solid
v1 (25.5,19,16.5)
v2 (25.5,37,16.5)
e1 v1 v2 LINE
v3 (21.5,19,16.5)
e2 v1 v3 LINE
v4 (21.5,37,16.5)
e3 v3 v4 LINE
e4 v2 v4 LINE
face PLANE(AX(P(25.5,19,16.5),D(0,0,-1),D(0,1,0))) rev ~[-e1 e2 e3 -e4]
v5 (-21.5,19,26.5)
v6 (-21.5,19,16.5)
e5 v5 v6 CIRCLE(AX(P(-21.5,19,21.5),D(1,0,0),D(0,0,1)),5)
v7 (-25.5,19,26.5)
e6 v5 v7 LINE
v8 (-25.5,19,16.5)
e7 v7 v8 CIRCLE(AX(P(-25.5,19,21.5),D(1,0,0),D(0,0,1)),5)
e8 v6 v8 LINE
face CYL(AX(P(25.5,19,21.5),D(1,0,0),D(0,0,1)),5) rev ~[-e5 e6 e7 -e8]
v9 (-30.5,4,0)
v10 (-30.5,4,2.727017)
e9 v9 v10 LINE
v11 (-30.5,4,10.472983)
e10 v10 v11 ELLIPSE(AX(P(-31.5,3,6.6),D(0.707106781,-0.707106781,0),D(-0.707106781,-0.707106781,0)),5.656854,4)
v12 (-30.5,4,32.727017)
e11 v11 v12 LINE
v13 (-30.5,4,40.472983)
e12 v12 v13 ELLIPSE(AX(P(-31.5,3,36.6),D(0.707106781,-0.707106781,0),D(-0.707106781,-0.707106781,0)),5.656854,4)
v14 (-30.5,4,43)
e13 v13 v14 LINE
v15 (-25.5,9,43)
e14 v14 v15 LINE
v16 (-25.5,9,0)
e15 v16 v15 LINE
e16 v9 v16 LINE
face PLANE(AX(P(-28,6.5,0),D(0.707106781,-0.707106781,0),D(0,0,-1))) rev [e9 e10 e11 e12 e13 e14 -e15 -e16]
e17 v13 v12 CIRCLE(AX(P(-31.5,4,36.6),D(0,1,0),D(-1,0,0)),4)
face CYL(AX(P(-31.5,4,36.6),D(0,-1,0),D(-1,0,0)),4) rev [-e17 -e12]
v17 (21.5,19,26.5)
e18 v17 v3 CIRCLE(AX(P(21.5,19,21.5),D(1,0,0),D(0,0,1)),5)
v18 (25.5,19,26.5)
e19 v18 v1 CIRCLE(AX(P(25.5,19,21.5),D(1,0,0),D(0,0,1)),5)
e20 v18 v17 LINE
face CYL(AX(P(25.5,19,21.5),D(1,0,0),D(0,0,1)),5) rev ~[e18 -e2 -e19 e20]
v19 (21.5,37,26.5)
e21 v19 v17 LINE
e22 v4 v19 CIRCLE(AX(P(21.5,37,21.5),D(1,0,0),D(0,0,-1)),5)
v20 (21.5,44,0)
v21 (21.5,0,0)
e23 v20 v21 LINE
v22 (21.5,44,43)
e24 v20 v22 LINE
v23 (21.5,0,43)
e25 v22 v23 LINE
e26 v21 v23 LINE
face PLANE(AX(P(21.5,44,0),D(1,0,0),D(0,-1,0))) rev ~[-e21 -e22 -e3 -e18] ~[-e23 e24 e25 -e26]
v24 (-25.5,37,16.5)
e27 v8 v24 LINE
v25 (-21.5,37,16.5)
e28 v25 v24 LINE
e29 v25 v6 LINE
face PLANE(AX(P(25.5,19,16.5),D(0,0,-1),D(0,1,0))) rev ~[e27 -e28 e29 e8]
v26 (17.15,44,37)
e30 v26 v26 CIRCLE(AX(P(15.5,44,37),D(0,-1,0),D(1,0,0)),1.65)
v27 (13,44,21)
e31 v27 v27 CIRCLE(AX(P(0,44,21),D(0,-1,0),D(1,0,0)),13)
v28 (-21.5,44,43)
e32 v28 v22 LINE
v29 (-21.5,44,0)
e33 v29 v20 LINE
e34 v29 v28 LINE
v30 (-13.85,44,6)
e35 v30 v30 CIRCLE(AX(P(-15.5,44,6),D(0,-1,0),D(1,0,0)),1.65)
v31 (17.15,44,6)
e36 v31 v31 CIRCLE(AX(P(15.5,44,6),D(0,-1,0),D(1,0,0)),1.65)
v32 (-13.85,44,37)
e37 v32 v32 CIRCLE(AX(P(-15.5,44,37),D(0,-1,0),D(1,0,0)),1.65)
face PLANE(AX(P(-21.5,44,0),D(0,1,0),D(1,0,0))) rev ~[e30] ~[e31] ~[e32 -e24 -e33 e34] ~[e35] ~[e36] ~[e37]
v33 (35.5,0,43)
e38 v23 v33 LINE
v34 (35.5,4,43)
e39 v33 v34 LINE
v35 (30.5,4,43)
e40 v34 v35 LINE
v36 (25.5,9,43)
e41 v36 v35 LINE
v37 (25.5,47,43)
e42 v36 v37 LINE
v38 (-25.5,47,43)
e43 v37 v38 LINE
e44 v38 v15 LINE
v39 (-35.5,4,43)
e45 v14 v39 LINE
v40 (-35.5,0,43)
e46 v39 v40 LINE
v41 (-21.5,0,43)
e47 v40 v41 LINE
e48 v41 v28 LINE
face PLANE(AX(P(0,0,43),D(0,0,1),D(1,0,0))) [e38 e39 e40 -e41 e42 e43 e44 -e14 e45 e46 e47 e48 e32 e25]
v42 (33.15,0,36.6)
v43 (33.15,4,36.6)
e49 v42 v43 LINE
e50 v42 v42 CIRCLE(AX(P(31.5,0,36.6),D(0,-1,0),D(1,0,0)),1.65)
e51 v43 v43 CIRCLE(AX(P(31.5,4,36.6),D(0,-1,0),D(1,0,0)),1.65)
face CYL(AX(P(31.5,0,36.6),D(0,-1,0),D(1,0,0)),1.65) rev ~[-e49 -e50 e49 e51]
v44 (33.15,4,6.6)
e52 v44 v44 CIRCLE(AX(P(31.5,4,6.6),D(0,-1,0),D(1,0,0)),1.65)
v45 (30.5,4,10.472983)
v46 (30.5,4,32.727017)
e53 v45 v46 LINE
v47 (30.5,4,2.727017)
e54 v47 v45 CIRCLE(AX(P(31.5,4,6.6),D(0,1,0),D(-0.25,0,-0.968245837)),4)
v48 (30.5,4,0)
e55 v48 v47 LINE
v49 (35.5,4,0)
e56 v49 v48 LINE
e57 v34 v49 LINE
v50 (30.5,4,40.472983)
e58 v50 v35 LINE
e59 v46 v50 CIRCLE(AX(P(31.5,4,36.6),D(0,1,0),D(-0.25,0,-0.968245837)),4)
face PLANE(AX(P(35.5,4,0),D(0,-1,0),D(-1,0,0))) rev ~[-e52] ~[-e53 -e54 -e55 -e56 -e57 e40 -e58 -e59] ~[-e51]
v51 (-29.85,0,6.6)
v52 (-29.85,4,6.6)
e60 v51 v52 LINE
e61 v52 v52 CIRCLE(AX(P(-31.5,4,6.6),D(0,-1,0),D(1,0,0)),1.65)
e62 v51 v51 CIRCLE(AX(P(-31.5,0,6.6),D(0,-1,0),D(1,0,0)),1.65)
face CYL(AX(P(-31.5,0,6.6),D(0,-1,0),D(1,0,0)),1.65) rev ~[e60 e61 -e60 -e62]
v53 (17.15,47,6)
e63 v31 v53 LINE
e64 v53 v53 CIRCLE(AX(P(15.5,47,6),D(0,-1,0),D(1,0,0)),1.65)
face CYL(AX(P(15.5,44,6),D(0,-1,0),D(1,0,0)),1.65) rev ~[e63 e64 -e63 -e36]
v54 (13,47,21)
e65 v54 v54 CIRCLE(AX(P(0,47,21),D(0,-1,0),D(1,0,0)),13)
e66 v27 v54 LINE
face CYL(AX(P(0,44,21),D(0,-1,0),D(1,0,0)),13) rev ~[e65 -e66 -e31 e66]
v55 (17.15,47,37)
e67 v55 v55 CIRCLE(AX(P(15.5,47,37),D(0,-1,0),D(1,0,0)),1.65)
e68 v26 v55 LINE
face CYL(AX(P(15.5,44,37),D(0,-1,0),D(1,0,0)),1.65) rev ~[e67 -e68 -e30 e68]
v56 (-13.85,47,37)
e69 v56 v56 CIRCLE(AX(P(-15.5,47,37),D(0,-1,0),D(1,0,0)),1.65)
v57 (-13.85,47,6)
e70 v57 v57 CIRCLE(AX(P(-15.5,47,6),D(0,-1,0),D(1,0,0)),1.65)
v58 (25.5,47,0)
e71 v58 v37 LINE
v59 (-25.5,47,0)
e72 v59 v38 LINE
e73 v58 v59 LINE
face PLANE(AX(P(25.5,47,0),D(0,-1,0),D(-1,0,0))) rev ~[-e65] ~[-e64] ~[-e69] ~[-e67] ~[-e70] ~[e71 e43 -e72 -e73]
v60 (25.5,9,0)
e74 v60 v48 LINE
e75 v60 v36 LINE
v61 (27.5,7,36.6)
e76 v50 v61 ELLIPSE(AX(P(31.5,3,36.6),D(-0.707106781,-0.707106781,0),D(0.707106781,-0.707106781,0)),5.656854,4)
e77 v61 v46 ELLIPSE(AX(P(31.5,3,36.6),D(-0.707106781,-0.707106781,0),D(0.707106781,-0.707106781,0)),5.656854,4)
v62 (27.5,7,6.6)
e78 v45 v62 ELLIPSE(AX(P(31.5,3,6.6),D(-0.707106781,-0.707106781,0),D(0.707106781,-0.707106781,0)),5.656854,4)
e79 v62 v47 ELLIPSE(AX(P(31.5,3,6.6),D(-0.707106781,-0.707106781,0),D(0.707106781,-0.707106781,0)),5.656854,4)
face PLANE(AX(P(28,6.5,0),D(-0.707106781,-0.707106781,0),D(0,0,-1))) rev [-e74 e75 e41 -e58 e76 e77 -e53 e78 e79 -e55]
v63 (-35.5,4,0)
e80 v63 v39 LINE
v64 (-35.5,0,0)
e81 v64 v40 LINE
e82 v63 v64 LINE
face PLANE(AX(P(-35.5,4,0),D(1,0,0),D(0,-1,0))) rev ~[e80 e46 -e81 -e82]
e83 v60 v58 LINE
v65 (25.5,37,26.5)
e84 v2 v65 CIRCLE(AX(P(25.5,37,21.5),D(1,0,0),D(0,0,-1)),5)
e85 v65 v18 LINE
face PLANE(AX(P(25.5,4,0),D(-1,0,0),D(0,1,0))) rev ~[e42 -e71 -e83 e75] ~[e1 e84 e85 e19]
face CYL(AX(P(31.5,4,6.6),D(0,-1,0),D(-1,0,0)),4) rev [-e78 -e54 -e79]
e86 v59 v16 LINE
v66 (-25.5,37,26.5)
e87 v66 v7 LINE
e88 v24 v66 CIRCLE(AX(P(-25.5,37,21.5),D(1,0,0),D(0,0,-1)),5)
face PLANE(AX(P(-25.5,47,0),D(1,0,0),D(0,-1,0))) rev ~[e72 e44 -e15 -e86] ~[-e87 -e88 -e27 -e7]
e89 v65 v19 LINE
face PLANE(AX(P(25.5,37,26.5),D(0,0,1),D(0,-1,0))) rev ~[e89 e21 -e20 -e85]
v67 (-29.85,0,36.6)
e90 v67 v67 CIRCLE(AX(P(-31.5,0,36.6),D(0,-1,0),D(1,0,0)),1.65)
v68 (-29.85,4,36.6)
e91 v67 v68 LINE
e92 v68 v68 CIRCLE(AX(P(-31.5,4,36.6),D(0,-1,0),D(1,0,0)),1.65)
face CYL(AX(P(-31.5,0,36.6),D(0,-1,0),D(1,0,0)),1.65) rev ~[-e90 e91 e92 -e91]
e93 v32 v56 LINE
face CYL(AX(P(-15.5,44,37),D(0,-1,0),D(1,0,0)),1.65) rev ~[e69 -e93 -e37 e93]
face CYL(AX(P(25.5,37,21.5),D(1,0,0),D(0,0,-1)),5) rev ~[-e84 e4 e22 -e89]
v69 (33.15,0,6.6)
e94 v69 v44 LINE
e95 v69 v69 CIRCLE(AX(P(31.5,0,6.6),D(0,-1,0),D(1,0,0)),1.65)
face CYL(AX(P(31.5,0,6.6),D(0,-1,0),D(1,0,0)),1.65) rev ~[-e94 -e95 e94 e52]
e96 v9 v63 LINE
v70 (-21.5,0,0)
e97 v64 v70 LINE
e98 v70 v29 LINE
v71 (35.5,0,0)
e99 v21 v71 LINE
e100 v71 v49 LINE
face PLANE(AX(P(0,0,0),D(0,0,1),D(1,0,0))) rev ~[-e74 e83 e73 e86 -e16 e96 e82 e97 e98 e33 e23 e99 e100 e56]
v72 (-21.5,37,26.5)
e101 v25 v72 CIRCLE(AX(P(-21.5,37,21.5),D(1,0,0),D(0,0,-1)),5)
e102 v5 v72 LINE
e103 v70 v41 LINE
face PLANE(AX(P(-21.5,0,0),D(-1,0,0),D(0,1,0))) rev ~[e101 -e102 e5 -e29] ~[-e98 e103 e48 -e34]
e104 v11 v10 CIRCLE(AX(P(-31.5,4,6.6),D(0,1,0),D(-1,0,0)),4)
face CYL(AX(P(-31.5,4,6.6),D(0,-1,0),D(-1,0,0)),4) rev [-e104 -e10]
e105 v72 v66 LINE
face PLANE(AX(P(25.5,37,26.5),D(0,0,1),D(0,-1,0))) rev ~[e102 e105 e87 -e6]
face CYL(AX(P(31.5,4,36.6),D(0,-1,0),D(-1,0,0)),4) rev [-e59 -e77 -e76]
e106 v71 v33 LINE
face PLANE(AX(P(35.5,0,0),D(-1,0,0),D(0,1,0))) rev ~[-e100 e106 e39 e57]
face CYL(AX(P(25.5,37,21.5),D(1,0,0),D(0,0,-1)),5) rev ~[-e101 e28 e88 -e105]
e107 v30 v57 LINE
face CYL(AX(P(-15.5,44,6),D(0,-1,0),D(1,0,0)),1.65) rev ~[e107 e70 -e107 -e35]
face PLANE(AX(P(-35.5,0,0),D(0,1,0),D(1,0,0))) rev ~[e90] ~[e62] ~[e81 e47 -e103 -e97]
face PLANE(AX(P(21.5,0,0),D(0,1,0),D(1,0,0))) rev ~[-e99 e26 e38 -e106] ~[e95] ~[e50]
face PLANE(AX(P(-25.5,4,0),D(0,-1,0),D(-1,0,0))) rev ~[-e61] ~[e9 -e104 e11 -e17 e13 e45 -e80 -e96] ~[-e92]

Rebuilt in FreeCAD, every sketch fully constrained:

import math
import FreeCAD as App
import Part
import Sketcher
from FreeCAD import Vector


def edges_at(feature, points):
    """Names of the edges that pass closest to the given points."""
    edges = feature.Shape.Edges
    near = lambda p: min(range(len(edges)), key=lambda i: edges[i].distToShape(Part.Vertex(*p))[0])
    return sorted({f"Edge{near(p) + 1}" for p in points})

doc = App.newDocument("Part")
body = doc.addObject("PartDesign::Body", "Body")

# Sketch on XY plane
sketch1 = body.newObject("Sketcher::SketchObject", "Sketch")
sketch1.AttachmentSupport = (doc.getObject("XY_Plane"), [""])
sketch1.MapMode = "FlatFace"
sketch1.addGeometry(Part.LineSegment(Vector(-35.5, 4, 0), Vector(-35.5, 0, 0)), False)
sketch1.addGeometry(Part.LineSegment(Vector(-35.5, 0, 0), Vector(-21.5, 0, 0)), False)
sketch1.addGeometry(Part.LineSegment(Vector(-21.5, 0, 0), Vector(-21.5, 44, 0)), False)
sketch1.addGeometry(Part.LineSegment(Vector(-21.5, 44, 0), Vector(21.5, 44, 0)), False)
sketch1.addGeometry(Part.LineSegment(Vector(21.5, 44, 0), Vector(21.5, 0, 0)), False)
sketch1.addGeometry(Part.LineSegment(Vector(21.5, 0, 0), Vector(35.5, 0, 0)), False)
sketch1.addGeometry(Part.LineSegment(Vector(35.5, 0, 0), Vector(35.5, 4, 0)), False)
sketch1.addGeometry(Part.LineSegment(Vector(35.5, 4, 0), Vector(25.5, 4, 0)), False)
sketch1.addGeometry(Part.LineSegment(Vector(25.5, 4, 0), Vector(25.5, 47, 0)), False)
sketch1.addGeometry(Part.LineSegment(Vector(25.5, 47, 0), Vector(-25.5, 47, 0)), False)
sketch1.addGeometry(Part.LineSegment(Vector(-25.5, 47, 0), Vector(-25.5, 4, 0)), False)
sketch1.addGeometry(Part.LineSegment(Vector(-25.5, 4, 0), Vector(-35.5, 4, 0)), False)
sketch1.addConstraint(Sketcher.Constraint("Coincident", 0, 2, 1, 1))
sketch1.addConstraint(Sketcher.Constraint("Coincident", 1, 2, 2, 1))
sketch1.addConstraint(Sketcher.Constraint("Coincident", 2, 2, 3, 1))
sketch1.addConstraint(Sketcher.Constraint("Coincident", 3, 2, 4, 1))
sketch1.addConstraint(Sketcher.Constraint("Coincident", 4, 2, 5, 1))
sketch1.addConstraint(Sketcher.Constraint("Coincident", 5, 2, 6, 1))
sketch1.addConstraint(Sketcher.Constraint("Coincident", 6, 2, 7, 1))
sketch1.addConstraint(Sketcher.Constraint("Coincident", 7, 2, 8, 1))
sketch1.addConstraint(Sketcher.Constraint("Coincident", 8, 2, 9, 1))
sketch1.addConstraint(Sketcher.Constraint("Coincident", 9, 2, 10, 1))
sketch1.addConstraint(Sketcher.Constraint("Coincident", 10, 2, 11, 1))
sketch1.addConstraint(Sketcher.Constraint("Coincident", 11, 2, 0, 1))
sketch1.addConstraint(Sketcher.Constraint("Vertical", 0))
sketch1.addConstraint(Sketcher.Constraint("Horizontal", 1))
sketch1.addConstraint(Sketcher.Constraint("Vertical", 2))
sketch1.addConstraint(Sketcher.Constraint("Horizontal", 3))
sketch1.addConstraint(Sketcher.Constraint("Vertical", 4))
sketch1.addConstraint(Sketcher.Constraint("Horizontal", 5))
sketch1.addConstraint(Sketcher.Constraint("Vertical", 6))
sketch1.addConstraint(Sketcher.Constraint("Horizontal", 7))
sketch1.addConstraint(Sketcher.Constraint("Vertical", 8))
sketch1.addConstraint(Sketcher.Constraint("Horizontal", 9))
sketch1.addConstraint(Sketcher.Constraint("Vertical", 10))
sketch1.addConstraint(Sketcher.Constraint("Horizontal", 11))
sketch1.addConstraint(Sketcher.Constraint("Symmetric", 1, 2, 4, 2, -1, 1))
sketch1.addConstraint(Sketcher.Constraint("Symmetric", 0, 2, 5, 2, -2))
sketch1.addConstraint(Sketcher.Constraint("Symmetric", 7, 2, 10, 2, -2))
sketch1.addConstraint(Sketcher.Constraint("Equal", 3, 8))
sketch1.addConstraint(Sketcher.Constraint("DistanceX", 3, 1, 3, 2, 43.0))
sketch1.addConstraint(Sketcher.Constraint("DistanceX", 7, 2, 7, 1, 10.0))
sketch1.addConstraint(Sketcher.Constraint("DistanceY", 0, 2, 0, 1, 4.0))
sketch1.addConstraint(Sketcher.Constraint("DistanceY", 2, 1, 2, 2, 44.0))
sketch1.addConstraint(Sketcher.Constraint("DistanceX", 4, 2, 7, 2, 4.0))
pad1 = body.newObject("PartDesign::Pad", "Pad")
pad1.Profile = sketch1
pad1.Length = 43

# Sketch on XZ plane
sketch2 = body.newObject("Sketcher::SketchObject", "Sketch001")
sketch2.AttachmentSupport = (doc.getObject("XZ_Plane"), [""])
sketch2.MapMode = "FlatFace"
sketch2.AttachmentOffset = App.Placement(Vector(0, 0, -44), App.Rotation())
sketch2.addGeometry(Part.Circle(Vector(-15.5, 6, 0), Vector(0, 0, 1), 1.6), False)
sketch2.addGeometry(Part.Circle(Vector(15.5, 6, 0), Vector(0, 0, 1), 1.6), False)
sketch2.addGeometry(Part.Circle(Vector(-15.5, 37, 0), Vector(0, 0, 1), 1.6), False)
sketch2.addGeometry(Part.Circle(Vector(15.5, 37, 0), Vector(0, 0, 1), 1.6), False)
sketch2.addConstraint(Sketcher.Constraint("Equal", 0, 1))
sketch2.addConstraint(Sketcher.Constraint("Equal", 1, 2))
sketch2.addConstraint(Sketcher.Constraint("Equal", 2, 3))
sketch2.addConstraint(Sketcher.Constraint("Symmetric", 0, 3, 1, 3, -2))
sketch2.addConstraint(Sketcher.Constraint("Symmetric", 2, 3, 3, 3, -2))
sketch2.addConstraint(Sketcher.Constraint("Vertical", 0, 3, 2, 3))
sketch2.addConstraint(Sketcher.Constraint("Diameter", 0, 3.3))
sketch2.addConstraint(Sketcher.Constraint("DistanceY", -1, 1, 0, 3, 6.0))
sketch2.addConstraint(Sketcher.Constraint("DistanceX", 0, 3, 1, 3, 31.0))
sketch2.addConstraint(Sketcher.Constraint("DistanceY", 0, 3, 2, 3, 31.0))
pocket1 = body.newObject("PartDesign::Pocket", "Pocket")
pocket1.Profile = sketch2
pocket1.Length = 3
doc.recompute()

chamfer = body.newObject("PartDesign::Chamfer", "Chamfer")
chamfer.Base = (pocket1, edges_at(pocket1, [(25.5, 4, 21.5), (-25.5, 4, 21.5)]))
chamfer.Size = 5

# Sketch on XZ plane
sketch3 = body.newObject("Sketcher::SketchObject", "Sketch002")
sketch3.AttachmentSupport = (doc.getObject("XZ_Plane"), [""])
sketch3.MapMode = "FlatFace"
sketch3.AttachmentOffset = App.Placement(Vector(0, 0, -44), App.Rotation())
sketch3.addGeometry(Part.Circle(Vector(0, 21, 0), Vector(0, 0, 1), 13), False)
sketch3.addConstraint(Sketcher.Constraint("PointOnObject", 0, 3, -2))
sketch3.addConstraint(Sketcher.Constraint("Diameter", 0, 26.0))
sketch3.addConstraint(Sketcher.Constraint("DistanceY", -1, 1, 0, 3, 21.0))
pocket2 = body.newObject("PartDesign::Pocket", "Pocket001")
pocket2.Profile = sketch3
pocket2.Length = 3

# Sketch on XZ plane
sketch4 = body.newObject("Sketcher::SketchObject", "Sketch003")
sketch4.AttachmentSupport = (doc.getObject("XZ_Plane"), [""])
sketch4.MapMode = "FlatFace"
sketch4.addGeometry(Part.Circle(Vector(31.5, 36.6, 0), Vector(0, 0, 1), 1.6), False)
sketch4.addGeometry(Part.Circle(Vector(-31.5, 36.6, 0), Vector(0, 0, 1), 1.6), False)
sketch4.addGeometry(Part.Circle(Vector(31.5, 6.6, 0), Vector(0, 0, 1), 1.6), False)
sketch4.addGeometry(Part.Circle(Vector(-31.5, 6.6, 0), Vector(0, 0, 1), 1.6), False)
sketch4.addConstraint(Sketcher.Constraint("Equal", 0, 1))
sketch4.addConstraint(Sketcher.Constraint("Equal", 1, 2))
sketch4.addConstraint(Sketcher.Constraint("Equal", 2, 3))
sketch4.addConstraint(Sketcher.Constraint("Symmetric", 0, 3, 1, 3, -2))
sketch4.addConstraint(Sketcher.Constraint("Symmetric", 2, 3, 3, 3, -2))
sketch4.addConstraint(Sketcher.Constraint("Vertical", 0, 3, 2, 3))
sketch4.addConstraint(Sketcher.Constraint("Diameter", 0, 3.3))
sketch4.addConstraint(Sketcher.Constraint("DistanceY", 2, 3, 0, 3, 30.0))
sketch4.addConstraint(Sketcher.Constraint("DistanceX", 1, 3, 0, 3, 63.0))
sketch4.addConstraint(Sketcher.Constraint("DistanceY", -1, 1, 0, 3, 36.6))
pocket3 = body.newObject("PartDesign::Pocket", "Pocket002")
pocket3.Profile = sketch4
pocket3.Length = 10

# Sketch on XZ plane
sketch5 = body.newObject("Sketcher::SketchObject", "Sketch004")
sketch5.AttachmentSupport = (doc.getObject("XZ_Plane"), [""])
sketch5.MapMode = "FlatFace"
sketch5.AttachmentOffset = App.Placement(Vector(0, 0, -4), App.Rotation())
sketch5.addGeometry(Part.Circle(Vector(31.5, 6.6, 0), Vector(0, 0, 1), 4), False)
sketch5.addGeometry(Part.Circle(Vector(31.5, 36.6, 0), Vector(0, 0, 1), 4), False)
sketch5.addGeometry(Part.Circle(Vector(-31.5, 6.6, 0), Vector(0, 0, 1), 4), False)
sketch5.addGeometry(Part.Circle(Vector(-31.5, 36.6, 0), Vector(0, 0, 1), 4), False)
sketch5.addConstraint(Sketcher.Constraint("Equal", 0, 1))
sketch5.addConstraint(Sketcher.Constraint("Equal", 1, 2))
sketch5.addConstraint(Sketcher.Constraint("Equal", 2, 3))
sketch5.addConstraint(Sketcher.Constraint("Symmetric", 0, 3, 2, 3, -2))
sketch5.addConstraint(Sketcher.Constraint("Symmetric", 1, 3, 3, 3, -2))
sketch5.addConstraint(Sketcher.Constraint("Vertical", 0, 3, 1, 3))
sketch5.addConstraint(Sketcher.Constraint("Diameter", 0, 8.0))
sketch5.addConstraint(Sketcher.Constraint("DistanceY", 0, 3, 1, 3, 30.0))
sketch5.addConstraint(Sketcher.Constraint("DistanceX", 2, 3, 0, 3, 63.0))
sketch5.addConstraint(Sketcher.Constraint("DistanceY", -1, 1, 0, 3, 6.6))
pocket4 = body.newObject("PartDesign::Pocket", "Pocket003")
pocket4.Profile = sketch5
pocket4.Length = 4

# Sketch on YZ plane
sketch6 = body.newObject("Sketcher::SketchObject", "Sketch005")
sketch6.AttachmentSupport = (doc.getObject("YZ_Plane"), [""])
sketch6.MapMode = "FlatFace"
sketch6.AttachmentOffset = App.Placement(Vector(0, 0, 25.5), App.Rotation())
sketch6.addGeometry(Part.ArcOfCircle(Part.Circle(Vector(37, 22, 0), Vector(0, 0, 1), 5), math.radians(-90), math.radians(90)), False)
sketch6.addGeometry(Part.LineSegment(Vector(37, 26, 0), Vector(19, 26, 0)), False)
sketch6.addGeometry(Part.ArcOfCircle(Part.Circle(Vector(19, 22, 0), Vector(0, 0, 1), 5), math.radians(90), math.radians(270)), False)
sketch6.addGeometry(Part.LineSegment(Vector(19, 16, 0), Vector(37, 16, 0)), False)
sketch6.addConstraint(Sketcher.Constraint("Tangent", 0, 2, 1, 1))
sketch6.addConstraint(Sketcher.Constraint("Tangent", 1, 2, 2, 1))
sketch6.addConstraint(Sketcher.Constraint("Tangent", 2, 2, 3, 1))
sketch6.addConstraint(Sketcher.Constraint("Tangent", 3, 2, 0, 1))
sketch6.addConstraint(Sketcher.Constraint("Horizontal", 1))
sketch6.addConstraint(Sketcher.Constraint("Horizontal", 3))
sketch6.addConstraint(Sketcher.Constraint("Radius", 0, 5.0))
sketch6.addConstraint(Sketcher.Constraint("DistanceX", 1, 2, 1, 1, 18.0))
sketch6.addConstraint(Sketcher.Constraint("DistanceY", -1, 1, 0, 3, 21.5))
sketch6.addConstraint(Sketcher.Constraint("DistanceX", -1, 1, 0, 3, 37.0))
pocket5 = body.newObject("PartDesign::Pocket", "Pocket004")
pocket5.Profile = sketch6
pocket5.Length = 51

doc.recompute()
